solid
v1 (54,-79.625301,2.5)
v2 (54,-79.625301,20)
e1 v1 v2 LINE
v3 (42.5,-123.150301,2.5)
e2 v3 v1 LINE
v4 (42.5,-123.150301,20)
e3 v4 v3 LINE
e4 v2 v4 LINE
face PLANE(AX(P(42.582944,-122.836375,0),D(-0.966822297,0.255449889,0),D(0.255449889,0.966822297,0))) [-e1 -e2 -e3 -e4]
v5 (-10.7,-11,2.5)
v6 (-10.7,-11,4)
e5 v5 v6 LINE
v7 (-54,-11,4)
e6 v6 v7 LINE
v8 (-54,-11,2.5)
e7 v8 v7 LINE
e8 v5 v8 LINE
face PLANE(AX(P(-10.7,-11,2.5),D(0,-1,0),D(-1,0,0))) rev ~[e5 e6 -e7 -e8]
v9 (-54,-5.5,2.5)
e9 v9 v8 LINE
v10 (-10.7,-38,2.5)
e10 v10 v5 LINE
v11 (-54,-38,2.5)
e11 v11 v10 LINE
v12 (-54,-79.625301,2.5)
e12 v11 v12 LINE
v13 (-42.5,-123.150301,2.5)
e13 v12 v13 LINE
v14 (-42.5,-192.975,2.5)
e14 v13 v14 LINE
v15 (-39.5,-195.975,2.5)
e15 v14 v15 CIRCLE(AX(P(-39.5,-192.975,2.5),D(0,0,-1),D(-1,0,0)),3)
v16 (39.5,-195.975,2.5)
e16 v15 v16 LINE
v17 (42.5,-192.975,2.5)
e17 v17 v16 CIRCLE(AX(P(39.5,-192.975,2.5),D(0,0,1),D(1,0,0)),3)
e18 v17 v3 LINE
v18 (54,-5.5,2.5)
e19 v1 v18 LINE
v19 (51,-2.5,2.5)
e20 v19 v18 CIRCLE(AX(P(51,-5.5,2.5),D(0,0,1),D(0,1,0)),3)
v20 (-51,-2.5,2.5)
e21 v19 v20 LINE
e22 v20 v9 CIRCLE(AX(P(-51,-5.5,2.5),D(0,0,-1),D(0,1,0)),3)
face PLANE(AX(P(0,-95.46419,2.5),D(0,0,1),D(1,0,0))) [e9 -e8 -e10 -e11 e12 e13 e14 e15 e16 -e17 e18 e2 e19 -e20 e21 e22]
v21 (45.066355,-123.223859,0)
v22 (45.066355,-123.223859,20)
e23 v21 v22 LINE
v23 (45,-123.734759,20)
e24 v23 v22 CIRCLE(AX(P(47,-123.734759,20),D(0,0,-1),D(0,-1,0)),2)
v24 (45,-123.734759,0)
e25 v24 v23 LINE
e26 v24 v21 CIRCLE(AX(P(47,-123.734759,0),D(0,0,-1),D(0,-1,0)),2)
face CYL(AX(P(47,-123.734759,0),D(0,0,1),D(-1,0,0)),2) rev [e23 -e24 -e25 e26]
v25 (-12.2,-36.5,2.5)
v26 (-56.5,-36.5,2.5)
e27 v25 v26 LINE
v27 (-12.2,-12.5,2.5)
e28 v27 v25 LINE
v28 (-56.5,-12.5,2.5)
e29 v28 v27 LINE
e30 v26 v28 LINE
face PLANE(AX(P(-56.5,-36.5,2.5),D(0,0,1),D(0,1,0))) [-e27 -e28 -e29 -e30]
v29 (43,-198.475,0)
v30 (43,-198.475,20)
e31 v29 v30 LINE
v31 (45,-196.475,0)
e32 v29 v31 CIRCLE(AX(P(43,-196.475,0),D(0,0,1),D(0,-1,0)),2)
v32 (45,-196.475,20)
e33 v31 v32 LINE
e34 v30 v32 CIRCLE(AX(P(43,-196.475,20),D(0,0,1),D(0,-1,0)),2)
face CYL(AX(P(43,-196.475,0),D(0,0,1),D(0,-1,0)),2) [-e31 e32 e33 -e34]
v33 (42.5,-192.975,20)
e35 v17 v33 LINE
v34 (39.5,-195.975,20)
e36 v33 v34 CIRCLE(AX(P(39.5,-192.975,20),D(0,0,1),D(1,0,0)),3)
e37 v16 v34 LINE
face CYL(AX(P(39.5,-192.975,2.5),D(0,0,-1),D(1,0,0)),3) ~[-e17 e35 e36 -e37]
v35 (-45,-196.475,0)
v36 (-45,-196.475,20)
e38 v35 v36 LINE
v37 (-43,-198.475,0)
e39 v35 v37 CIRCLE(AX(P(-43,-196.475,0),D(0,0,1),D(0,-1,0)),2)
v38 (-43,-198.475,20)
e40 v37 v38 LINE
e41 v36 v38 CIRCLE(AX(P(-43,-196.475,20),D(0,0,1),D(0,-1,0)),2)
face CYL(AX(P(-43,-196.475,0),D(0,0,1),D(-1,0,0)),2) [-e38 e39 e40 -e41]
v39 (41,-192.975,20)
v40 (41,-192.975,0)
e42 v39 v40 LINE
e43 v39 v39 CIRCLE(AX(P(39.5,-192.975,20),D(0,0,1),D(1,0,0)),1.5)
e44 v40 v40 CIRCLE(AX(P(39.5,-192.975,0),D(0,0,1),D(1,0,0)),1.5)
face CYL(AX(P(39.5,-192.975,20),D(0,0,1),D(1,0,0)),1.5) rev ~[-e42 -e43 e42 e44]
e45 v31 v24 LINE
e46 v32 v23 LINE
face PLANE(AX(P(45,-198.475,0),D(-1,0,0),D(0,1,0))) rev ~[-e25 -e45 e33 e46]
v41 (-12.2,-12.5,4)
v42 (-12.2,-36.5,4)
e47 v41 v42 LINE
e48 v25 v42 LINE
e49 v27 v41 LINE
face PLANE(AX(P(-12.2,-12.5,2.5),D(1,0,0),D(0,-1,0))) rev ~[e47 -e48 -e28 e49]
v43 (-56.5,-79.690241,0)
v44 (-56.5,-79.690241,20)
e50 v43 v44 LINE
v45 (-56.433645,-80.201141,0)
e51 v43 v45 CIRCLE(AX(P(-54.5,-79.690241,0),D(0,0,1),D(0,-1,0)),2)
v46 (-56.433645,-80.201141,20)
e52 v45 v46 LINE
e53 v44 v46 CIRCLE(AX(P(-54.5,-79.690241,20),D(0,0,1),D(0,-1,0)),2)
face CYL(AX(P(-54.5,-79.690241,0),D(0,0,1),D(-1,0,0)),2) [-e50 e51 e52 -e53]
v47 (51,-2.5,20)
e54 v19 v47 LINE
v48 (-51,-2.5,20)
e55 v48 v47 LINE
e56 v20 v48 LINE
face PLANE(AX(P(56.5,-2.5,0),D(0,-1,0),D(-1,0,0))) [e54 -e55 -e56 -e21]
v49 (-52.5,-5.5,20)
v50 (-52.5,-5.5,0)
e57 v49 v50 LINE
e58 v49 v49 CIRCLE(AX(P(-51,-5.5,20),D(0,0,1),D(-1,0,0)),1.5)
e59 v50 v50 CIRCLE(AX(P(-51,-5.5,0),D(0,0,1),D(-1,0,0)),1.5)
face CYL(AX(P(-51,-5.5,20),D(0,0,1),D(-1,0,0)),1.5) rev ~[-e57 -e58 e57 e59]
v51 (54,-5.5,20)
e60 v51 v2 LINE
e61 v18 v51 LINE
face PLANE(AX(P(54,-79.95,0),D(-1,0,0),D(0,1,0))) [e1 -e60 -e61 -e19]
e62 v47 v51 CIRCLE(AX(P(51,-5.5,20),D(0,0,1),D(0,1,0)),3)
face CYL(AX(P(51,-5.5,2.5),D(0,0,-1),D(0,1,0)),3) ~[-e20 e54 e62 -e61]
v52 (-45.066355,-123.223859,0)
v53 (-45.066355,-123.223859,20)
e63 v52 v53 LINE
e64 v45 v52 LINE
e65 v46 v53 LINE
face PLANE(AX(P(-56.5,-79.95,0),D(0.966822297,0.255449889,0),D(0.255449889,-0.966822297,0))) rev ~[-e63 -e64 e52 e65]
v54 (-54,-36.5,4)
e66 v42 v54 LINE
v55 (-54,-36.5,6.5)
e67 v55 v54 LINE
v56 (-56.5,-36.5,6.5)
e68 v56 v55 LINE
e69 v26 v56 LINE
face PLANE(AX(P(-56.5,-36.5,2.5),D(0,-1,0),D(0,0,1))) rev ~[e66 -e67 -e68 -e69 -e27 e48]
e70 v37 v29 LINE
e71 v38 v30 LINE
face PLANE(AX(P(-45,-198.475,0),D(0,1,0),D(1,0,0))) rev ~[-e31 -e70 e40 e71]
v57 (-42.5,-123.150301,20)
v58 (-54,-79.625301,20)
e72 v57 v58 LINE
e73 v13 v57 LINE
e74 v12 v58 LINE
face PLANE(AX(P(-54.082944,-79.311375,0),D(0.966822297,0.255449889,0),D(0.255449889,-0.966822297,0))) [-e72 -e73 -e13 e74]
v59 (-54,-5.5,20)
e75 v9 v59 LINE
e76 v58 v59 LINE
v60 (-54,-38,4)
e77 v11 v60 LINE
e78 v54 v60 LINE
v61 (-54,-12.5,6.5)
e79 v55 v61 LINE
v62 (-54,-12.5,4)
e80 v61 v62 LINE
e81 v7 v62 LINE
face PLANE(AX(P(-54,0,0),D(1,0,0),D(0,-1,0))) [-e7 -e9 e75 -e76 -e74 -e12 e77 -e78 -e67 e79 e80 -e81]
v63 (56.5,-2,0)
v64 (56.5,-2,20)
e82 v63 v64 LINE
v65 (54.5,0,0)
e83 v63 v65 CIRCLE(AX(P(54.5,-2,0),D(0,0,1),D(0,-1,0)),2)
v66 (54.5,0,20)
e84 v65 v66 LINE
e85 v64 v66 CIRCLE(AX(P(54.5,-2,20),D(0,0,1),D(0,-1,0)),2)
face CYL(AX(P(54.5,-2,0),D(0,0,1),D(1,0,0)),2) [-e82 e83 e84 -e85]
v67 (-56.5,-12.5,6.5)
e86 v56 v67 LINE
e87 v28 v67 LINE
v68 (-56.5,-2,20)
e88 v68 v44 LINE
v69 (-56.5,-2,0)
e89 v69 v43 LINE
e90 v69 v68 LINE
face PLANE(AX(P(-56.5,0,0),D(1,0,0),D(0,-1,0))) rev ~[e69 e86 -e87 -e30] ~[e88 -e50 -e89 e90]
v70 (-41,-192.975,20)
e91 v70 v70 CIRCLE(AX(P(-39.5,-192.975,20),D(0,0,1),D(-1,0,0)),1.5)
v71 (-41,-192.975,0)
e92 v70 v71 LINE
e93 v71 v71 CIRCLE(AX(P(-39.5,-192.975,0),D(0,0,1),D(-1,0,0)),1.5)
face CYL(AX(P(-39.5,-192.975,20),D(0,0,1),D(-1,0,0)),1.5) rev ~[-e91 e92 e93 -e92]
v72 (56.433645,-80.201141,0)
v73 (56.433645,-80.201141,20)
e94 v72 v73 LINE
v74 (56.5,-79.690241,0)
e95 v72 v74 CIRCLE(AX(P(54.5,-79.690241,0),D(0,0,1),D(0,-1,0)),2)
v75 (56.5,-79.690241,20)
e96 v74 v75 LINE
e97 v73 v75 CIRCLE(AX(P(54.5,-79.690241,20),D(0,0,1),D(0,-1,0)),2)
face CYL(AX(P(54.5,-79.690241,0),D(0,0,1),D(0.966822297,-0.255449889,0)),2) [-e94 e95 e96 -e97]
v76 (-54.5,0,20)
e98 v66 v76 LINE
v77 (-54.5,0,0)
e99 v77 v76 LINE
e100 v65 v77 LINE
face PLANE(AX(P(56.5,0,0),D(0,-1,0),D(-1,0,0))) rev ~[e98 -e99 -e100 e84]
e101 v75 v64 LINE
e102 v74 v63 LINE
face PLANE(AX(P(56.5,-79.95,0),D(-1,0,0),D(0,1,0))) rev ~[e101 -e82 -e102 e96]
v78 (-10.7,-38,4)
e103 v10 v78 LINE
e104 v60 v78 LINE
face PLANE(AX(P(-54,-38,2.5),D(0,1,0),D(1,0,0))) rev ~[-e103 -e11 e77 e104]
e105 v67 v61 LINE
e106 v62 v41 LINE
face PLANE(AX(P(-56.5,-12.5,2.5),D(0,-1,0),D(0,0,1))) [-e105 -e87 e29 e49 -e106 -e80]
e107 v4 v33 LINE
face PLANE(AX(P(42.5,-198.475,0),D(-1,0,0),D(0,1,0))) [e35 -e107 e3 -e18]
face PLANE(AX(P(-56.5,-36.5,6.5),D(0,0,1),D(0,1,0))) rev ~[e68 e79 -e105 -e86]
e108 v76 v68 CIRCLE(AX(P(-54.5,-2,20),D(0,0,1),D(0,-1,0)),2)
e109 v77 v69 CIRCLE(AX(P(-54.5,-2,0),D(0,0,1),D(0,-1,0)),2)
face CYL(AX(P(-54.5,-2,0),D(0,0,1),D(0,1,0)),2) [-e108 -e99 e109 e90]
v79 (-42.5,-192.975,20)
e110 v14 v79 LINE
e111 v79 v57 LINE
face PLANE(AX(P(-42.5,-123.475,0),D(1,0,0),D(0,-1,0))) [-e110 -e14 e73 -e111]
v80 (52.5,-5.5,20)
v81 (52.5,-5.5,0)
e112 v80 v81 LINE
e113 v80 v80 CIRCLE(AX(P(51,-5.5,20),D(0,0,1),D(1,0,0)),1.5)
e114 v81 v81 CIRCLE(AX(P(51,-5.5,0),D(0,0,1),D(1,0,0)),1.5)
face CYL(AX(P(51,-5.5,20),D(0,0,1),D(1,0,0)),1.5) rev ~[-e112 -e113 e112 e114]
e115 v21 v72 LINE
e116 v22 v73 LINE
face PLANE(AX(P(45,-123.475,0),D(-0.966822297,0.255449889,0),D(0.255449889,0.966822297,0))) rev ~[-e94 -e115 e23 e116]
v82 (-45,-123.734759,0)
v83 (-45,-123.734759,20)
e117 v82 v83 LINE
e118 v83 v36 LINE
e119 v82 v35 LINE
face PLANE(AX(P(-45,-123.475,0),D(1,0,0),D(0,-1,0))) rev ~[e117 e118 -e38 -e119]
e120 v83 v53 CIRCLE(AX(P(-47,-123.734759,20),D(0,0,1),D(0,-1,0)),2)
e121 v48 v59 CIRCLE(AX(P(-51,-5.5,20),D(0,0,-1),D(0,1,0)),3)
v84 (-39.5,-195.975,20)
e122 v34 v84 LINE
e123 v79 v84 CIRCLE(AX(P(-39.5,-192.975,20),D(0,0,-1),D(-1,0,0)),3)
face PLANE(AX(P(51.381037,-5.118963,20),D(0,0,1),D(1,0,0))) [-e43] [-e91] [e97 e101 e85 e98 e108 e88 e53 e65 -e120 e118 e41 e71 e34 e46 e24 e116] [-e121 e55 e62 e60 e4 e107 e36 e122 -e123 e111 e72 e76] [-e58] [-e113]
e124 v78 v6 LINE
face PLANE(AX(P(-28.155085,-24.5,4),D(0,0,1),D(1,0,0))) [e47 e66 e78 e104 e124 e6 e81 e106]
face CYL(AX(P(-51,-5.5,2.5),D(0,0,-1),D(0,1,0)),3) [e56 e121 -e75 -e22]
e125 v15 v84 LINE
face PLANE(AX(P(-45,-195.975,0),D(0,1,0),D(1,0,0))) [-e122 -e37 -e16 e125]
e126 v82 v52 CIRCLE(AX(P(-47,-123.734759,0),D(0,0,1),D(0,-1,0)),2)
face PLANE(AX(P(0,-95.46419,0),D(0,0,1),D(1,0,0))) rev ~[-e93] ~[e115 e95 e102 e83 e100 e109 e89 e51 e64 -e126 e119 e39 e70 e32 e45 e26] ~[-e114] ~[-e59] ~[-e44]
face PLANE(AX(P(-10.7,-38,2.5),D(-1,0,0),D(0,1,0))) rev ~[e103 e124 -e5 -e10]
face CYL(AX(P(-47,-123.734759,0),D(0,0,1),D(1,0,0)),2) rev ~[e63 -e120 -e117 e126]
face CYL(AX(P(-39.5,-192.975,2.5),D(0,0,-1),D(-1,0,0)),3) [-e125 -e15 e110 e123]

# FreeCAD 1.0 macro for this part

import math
import FreeCAD as App
import Part
import Sketcher

V = App.Vector
Q = App.Units.Quantity


def edges_at(feature, points):
    """Names of the edges that pass closest to the given points."""
    edges = feature.Shape.Edges
    near = lambda p: min(range(len(edges)), key=lambda i: edges[i].distToShape(Part.Vertex(*p))[0])
    return sorted({f"Edge{near(p) + 1}" for p in points})


def faces_at(feature, points):
    """Names of the faces that lie closest to the given points."""
    faces = feature.Shape.Faces
    near = lambda p: min(range(len(faces)), key=lambda i: faces[i].distToShape(Part.Vertex(*p))[0])
    return sorted({f"Face{near(p) + 1}" for p in points})


def add_polygon(sketch, points):
    """Adds a closed chain of lines whose ends are joined by coincident constraints."""
    first, n = sketch.GeometryCount, len(points)
    for a, b in zip(points, points[1:] + points[:1]):
        sketch.addGeometry(Part.LineSegment(App.Vector(*a, 0), App.Vector(*b, 0)), False)
    for i in range(n):
        sketch.addConstraint(Sketcher.Constraint("Coincident", first + i, 2, first + (i + 1) % n, 1))

doc = App.newDocument("Part")
body = doc.addObject("PartDesign::Body", "Body")

sketch1 = body.newObject("Sketcher::SketchObject", "Sketch")
sketch1.AttachmentSupport = (doc.getObject("XY_Plane"), [""])
sketch1.MapMode = "FlatFace"
add_polygon(sketch1, [(-45, -123.475), (-45, -198.475), (45, -198.475), (45, -123.475), (56.5, -79.95), (56.5, 0), (-56.5, 0), (-56.5, -79.95)])
sketch1.addConstraint([
    Sketcher.Constraint("Vertical", 0),
    Sketcher.Constraint("Horizontal", 1),
    Sketcher.Constraint("Vertical", 2),
    Sketcher.Constraint("Vertical", 4),
    Sketcher.Constraint("Horizontal", 5),
    Sketcher.Constraint("Vertical", 6),
    Sketcher.Constraint("Symmetric", 4, 2, 5, 2, -1, 1),
    Sketcher.Constraint("Symmetric", 2, 2, 7, 2, -2),
    Sketcher.Constraint("Horizontal", 3, 2, 6, 2),
    Sketcher.Constraint("DistanceX", 1, 1, 1, 2, Q("90 mm")),
    Sketcher.Constraint("DistanceX", 5, 2, 5, 1, Q("113 mm")),
    Sketcher.Constraint("DistanceY", 0, 2, 0, 1, Q("75 mm")),
    Sketcher.Constraint("DistanceY", 4, 1, 4, 2, Q("79.95 mm")),
    Sketcher.Constraint("DistanceY", 0, 2, -1, 1, Q("198.475 mm")),
])
pad1 = body.newObject("PartDesign::Pad", "Pad")
pad1.Profile = sketch1
pad1.Length = 20
doc.recompute()

thickness = body.newObject("PartDesign::Thickness", "Thickness")
thickness.Base = (pad1, faces_at(pad1, [(0, -99.237, 20)]))
thickness.Value = 2.5
thickness.Reversed = True
thickness.Join = "Intersection"
doc.recompute()

fillet = body.newObject("PartDesign::Fillet", "Fillet")
fillet.Base = (thickness, edges_at(thickness, [
    (-56.5, -79.95, 10),
    (-56.5, 0, 10),
    (56.5, 0, 10),
    (56.5, -79.95, 10),
    (45, -123.475, 10),
    (45, -198.475, 10),
    (-45, -198.475, 10),
    (-45, -123.475, 10),
]))
fillet.Radius = 2

sketch2 = body.newObject("Sketcher::SketchObject", "Sketch001")
sketch2.AttachmentSupport = (doc.getObject("XY_Plane"), [""])
sketch2.MapMode = "FlatFace"
sketch2.AttachmentOffset = App.Placement(V(0, 0, 2.5), App.Rotation())
sketch2.addGeometry([
    Part.LineSegment(V(54, -5.5, 0), V(54, -2.5, 0)),
    Part.LineSegment(V(54, -2.5, 0), V(51, -2.5, 0)),
    Part.ArcOfCircle(Part.Circle(V(51, -5.5, 0), V(0, 0, 1), 3), math.radians(90), math.radians(360)),
    Part.LineSegment(V(42.5, -195.975, 0), V(42.5, -192.975, 0)),
    Part.ArcOfCircle(Part.Circle(V(39.5, -192.975, 0), V(0, 0, 1), 3), math.radians(0), math.radians(270)),
    Part.LineSegment(V(39.5, -195.975, 0), V(42.5, -195.975, 0)),
    Part.LineSegment(V(-42.5, -195.975, 0), V(-39.5, -195.975, 0)),
    Part.ArcOfCircle(Part.Circle(V(-39.5, -192.975, 0), V(0, 0, 1), 3), math.radians(-90), math.radians(180)),
    Part.LineSegment(V(-42.5, -192.975, 0), V(-42.5, -195.975, 0)),
    Part.LineSegment(V(-51, -2.5, 0), V(-54, -2.5, 0)),
    Part.LineSegment(V(-54, -2.5, 0), V(-54, -5.5, 0)),
    Part.ArcOfCircle(Part.Circle(V(-51, -5.5, 0), V(0, 0, 1), 3), math.radians(180), math.radians(450)),
], False)
sketch2.addConstraint([
    Sketcher.Constraint("Coincident", 0, 2, 1, 1),
    Sketcher.Constraint("Tangent", 1, 2, 2, 1),
    Sketcher.Constraint("Tangent", 2, 2, 0, 1),
    Sketcher.Constraint("Tangent", 3, 2, 4, 1),
    Sketcher.Constraint("Tangent", 4, 2, 5, 1),
    Sketcher.Constraint("Coincident", 5, 2, 3, 1),
    Sketcher.Constraint("Tangent", 6, 2, 7, 1),
    Sketcher.Constraint("Tangent", 7, 2, 8, 1),
    Sketcher.Constraint("Coincident", 8, 2, 6, 1),
    Sketcher.Constraint("Coincident", 9, 2, 10, 1),
    Sketcher.Constraint("Tangent", 10, 2, 11, 1),
    Sketcher.Constraint("Tangent", 11, 2, 9, 1),
    Sketcher.Constraint("Vertical", 0),
    Sketcher.Constraint("Horizontal", 1),
    Sketcher.Constraint("Vertical", 3),
    Sketcher.Constraint("Horizontal", 5),
    Sketcher.Constraint("Horizontal", 6),
    Sketcher.Constraint("Vertical", 8),
    Sketcher.Constraint("Horizontal", 9),
    Sketcher.Constraint("Vertical", 10),
    Sketcher.Constraint("Equal", 2, 4),
    Sketcher.Constraint("Equal", 4, 7),
    Sketcher.Constraint("Equal", 7, 11),
    Sketcher.Constraint("Symmetric", 4, 3, 7, 3, -2),
    Sketcher.Constraint("Symmetric", 2, 3, 11, 3, -2),
    Sketcher.Constraint("Radius", 2, Q("3 mm")),
    Sketcher.Constraint("DistanceX", -1, 1, 2, 3, Q("51 mm")),
    Sketcher.Constraint("DistanceX", 7, 3, 4, 3, Q("79 mm")),
    Sketcher.Constraint("DistanceY", 2, 3, -1, 1, Q("5.5 mm")),
    Sketcher.Constraint("DistanceY", 4, 3, -1, 1, Q("192.975 mm")),
])
pad2 = body.newObject("PartDesign::Pad", "Pad001")
pad2.Profile = sketch2
pad2.Length = 17.5

sketch3 = body.newObject("Sketcher::SketchObject", "Sketch002")
sketch3.AttachmentSupport = (doc.getObject("XY_Plane"), [""])
sketch3.MapMode = "FlatFace"
sketch3.AttachmentOffset = App.Placement(V(0, 0, 20), App.Rotation())
sketch3.addGeometry([
    Part.Circle(V(51, -5.5, 0), V(0, 0, 1), 1.5),
    Part.Circle(V(39.5, -192.975, 0), V(0, 0, 1), 1.5),
    Part.Circle(V(-39.5, -192.975, 0), V(0, 0, 1), 1.5),
    Part.Circle(V(-51, -5.5, 0), V(0, 0, 1), 1.5),
], False)
sketch3.addConstraint([
    Sketcher.Constraint("Equal", 0, 1),
    Sketcher.Constraint("Equal", 1, 2),
    Sketcher.Constraint("Equal", 2, 3),
    Sketcher.Constraint("Symmetric", 1, 3, 2, 3, -2),
    Sketcher.Constraint("Symmetric", 0, 3, 3, 3, -2),
    Sketcher.Constraint("Diameter", 0, Q("3 mm")),
    Sketcher.Constraint("DistanceX", -1, 1, 0, 3, Q("51 mm")),
    Sketcher.Constraint("DistanceX", 2, 3, 1, 3, Q("79 mm")),
    Sketcher.Constraint("DistanceY", 0, 3, -1, 1, Q("5.5 mm")),
    Sketcher.Constraint("DistanceY", 1, 3, -1, 1, Q("192.975 mm")),
])
pocket1 = body.newObject("PartDesign::Pocket", "Pocket")
pocket1.Profile = sketch3
pocket1.Type = "ThroughAll"

sketch4 = body.newObject("Sketcher::SketchObject", "Sketch003")
sketch4.AttachmentSupport = (doc.getObject("XY_Plane"), [""])
sketch4.MapMode = "FlatFace"
sketch4.AttachmentOffset = App.Placement(V(0, 0, 2.5), App.Rotation())
add_polygon(sketch4, [(-54, -11), (-54, -12.5), (-12.2, -12.5), (-12.2, -36.5), (-54, -36.5), (-54, -38), (-10.7, -38), (-10.7, -11)])
sketch4.addConstraint([
    Sketcher.Constraint("Vertical", 0),
    Sketcher.Constraint("Horizontal", 1),
    Sketcher.Constraint("Vertical", 2),
    Sketcher.Constraint("Horizontal", 3),
    Sketcher.Constraint("Vertical", 4),
    Sketcher.Constraint("Horizontal", 5),
    Sketcher.Constraint("Vertical", 6),
    Sketcher.Constraint("Horizontal", 7),
    Sketcher.Constraint("Vertical", 0, 2, 3, 2),
    Sketcher.Constraint("Equal", 0, 4),
    Sketcher.Constraint("DistanceY", 2, 2, 2, 1, Q("24 mm")),
    Sketcher.Constraint("DistanceY", 6, 1, 6, 2, Q("27 mm")),
    Sketcher.Constraint("DistanceX", 1, 1, 1, 2, Q("41.8 mm")),
    Sketcher.Constraint("DistanceX", 5, 1, 5, 2, Q("43.3 mm")),
    Sketcher.Constraint("DistanceX", 0, 2, -1, 1, Q("54 mm")),
    Sketcher.Constraint("DistanceY", 4, 2, -1, 1, Q("38 mm")),
])
pad3 = body.newObject("PartDesign::Pad", "Pad002")
pad3.Profile = sketch4
pad3.Length = 1.5

sketch5 = body.newObject("Sketcher::SketchObject", "Sketch004")
sketch5.AttachmentSupport = (doc.getObject("YZ_Plane"), [""])
sketch5.MapMode = "FlatFace"
sketch5.AttachmentOffset = App.Placement(V(0, 0, -56.5), App.Rotation())
add_polygon(sketch5, [(-12.5, 2.5), (-36.5, 2.5), (-36.5, 6.5), (-12.5, 6.5)])
sketch5.addConstraint([
    Sketcher.Constraint("Horizontal", 0),
    Sketcher.Constraint("Vertical", 1),
    Sketcher.Constraint("Horizontal", 2),
    Sketcher.Constraint("Vertical", 3),
    Sketcher.Constraint("DistanceX", 0, 2, 0, 1, Q("24 mm")),
    Sketcher.Constraint("DistanceY", 1, 1, 1, 2, Q("4 mm")),
    Sketcher.Constraint("DistanceX", 0, 2, -1, 1, Q("36.5 mm")),
    Sketcher.Constraint("DistanceY", -1, 1, 0, 2, Q("2.5 mm")),
])
pocket2 = body.newObject("PartDesign::Pocket", "Pocket001")
pocket2.Profile = sketch5
pocket2.Type = "UpToFirst"
pocket2.Reversed = True

doc.recompute()
